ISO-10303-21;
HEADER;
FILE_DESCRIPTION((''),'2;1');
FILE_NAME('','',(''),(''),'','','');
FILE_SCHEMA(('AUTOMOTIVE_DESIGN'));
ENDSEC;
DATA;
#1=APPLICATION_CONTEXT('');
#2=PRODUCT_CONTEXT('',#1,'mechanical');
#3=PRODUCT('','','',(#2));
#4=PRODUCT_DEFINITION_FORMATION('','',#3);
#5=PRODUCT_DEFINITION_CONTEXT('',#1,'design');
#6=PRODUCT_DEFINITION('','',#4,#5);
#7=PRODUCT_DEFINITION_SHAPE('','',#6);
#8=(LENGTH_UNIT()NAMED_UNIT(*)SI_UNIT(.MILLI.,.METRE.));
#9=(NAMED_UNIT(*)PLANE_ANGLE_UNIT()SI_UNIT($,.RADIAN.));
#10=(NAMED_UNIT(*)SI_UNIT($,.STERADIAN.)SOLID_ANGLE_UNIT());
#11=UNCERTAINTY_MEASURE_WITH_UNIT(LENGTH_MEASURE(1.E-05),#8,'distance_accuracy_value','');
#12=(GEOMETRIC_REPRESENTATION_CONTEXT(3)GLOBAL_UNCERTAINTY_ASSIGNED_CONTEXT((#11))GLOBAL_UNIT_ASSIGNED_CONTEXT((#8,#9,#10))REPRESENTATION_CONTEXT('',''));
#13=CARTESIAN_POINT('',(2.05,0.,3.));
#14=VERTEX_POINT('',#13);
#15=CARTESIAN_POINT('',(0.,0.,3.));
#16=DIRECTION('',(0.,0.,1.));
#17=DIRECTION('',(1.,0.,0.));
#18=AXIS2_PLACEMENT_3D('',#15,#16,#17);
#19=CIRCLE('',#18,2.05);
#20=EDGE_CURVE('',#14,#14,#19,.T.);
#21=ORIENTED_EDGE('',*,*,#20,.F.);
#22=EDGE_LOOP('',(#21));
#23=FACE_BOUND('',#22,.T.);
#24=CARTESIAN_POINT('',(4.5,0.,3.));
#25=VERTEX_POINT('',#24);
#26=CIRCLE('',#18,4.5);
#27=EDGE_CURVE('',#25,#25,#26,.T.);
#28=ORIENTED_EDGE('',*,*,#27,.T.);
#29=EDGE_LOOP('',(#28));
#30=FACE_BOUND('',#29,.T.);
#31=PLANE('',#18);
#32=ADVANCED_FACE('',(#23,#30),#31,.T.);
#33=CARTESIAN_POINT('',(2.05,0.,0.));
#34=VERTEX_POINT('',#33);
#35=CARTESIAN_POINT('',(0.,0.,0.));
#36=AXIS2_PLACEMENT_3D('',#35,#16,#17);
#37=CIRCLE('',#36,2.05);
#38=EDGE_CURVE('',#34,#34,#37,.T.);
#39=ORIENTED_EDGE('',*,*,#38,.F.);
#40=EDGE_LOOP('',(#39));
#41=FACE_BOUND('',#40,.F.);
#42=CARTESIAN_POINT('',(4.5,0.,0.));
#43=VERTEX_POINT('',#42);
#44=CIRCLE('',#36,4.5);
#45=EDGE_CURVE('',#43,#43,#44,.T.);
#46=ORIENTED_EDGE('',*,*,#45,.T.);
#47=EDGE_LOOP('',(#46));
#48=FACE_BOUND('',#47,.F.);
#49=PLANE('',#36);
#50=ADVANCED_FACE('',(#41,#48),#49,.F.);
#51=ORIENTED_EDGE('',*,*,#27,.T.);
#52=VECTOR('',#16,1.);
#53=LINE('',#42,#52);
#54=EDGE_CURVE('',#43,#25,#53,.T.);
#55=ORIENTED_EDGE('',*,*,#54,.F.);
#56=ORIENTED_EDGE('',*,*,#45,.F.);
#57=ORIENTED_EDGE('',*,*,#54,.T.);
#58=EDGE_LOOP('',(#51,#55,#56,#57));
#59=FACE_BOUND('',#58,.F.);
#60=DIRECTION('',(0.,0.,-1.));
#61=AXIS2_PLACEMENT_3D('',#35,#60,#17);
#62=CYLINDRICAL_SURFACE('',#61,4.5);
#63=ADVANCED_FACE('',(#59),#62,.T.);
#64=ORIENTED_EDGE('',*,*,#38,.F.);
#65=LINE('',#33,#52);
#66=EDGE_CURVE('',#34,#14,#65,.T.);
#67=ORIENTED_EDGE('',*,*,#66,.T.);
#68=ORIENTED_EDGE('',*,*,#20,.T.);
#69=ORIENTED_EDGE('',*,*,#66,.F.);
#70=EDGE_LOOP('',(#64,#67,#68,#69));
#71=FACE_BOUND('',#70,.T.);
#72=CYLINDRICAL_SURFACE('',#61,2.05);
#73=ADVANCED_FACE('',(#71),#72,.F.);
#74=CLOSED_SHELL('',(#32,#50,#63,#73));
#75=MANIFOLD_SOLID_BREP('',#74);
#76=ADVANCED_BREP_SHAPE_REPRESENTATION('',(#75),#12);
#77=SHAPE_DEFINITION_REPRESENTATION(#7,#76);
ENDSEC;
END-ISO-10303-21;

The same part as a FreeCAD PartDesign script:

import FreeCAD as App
import Part
import Sketcher
from FreeCAD import Vector
Q = App.Units.Quantity

doc = App.newDocument("Part")
body = doc.addObject("PartDesign::Body", "Body")

sketch1 = body.newObject("Sketcher::SketchObject", "Sketch")
sketch1.AttachmentSupport = (doc.getObject("XY_Plane"), [""])
sketch1.MapMode = "FlatFace"
sketch1.addGeometry([
    Part.Circle(Vector(0, 0, 0), Vector(0, 0, 1), 4.5),
    Part.Circle(Vector(0, 0, 0), Vector(0, 0, 1), 2),
], False)
sketch1.addConstraint([
    Sketcher.Constraint("Coincident", 0, 3, -1, 1),
    Sketcher.Constraint("Coincident", 1, 3, -1, 1),
    Sketcher.Constraint("Diameter", 0, Q("9 mm")),
    Sketcher.Constraint("Diameter", 1, Q("4.1 mm")),
])
pad1 = body.newObject("PartDesign::Pad", "Pad")
pad1.Profile = sketch1
pad1.Length = 3

doc.recompute()
